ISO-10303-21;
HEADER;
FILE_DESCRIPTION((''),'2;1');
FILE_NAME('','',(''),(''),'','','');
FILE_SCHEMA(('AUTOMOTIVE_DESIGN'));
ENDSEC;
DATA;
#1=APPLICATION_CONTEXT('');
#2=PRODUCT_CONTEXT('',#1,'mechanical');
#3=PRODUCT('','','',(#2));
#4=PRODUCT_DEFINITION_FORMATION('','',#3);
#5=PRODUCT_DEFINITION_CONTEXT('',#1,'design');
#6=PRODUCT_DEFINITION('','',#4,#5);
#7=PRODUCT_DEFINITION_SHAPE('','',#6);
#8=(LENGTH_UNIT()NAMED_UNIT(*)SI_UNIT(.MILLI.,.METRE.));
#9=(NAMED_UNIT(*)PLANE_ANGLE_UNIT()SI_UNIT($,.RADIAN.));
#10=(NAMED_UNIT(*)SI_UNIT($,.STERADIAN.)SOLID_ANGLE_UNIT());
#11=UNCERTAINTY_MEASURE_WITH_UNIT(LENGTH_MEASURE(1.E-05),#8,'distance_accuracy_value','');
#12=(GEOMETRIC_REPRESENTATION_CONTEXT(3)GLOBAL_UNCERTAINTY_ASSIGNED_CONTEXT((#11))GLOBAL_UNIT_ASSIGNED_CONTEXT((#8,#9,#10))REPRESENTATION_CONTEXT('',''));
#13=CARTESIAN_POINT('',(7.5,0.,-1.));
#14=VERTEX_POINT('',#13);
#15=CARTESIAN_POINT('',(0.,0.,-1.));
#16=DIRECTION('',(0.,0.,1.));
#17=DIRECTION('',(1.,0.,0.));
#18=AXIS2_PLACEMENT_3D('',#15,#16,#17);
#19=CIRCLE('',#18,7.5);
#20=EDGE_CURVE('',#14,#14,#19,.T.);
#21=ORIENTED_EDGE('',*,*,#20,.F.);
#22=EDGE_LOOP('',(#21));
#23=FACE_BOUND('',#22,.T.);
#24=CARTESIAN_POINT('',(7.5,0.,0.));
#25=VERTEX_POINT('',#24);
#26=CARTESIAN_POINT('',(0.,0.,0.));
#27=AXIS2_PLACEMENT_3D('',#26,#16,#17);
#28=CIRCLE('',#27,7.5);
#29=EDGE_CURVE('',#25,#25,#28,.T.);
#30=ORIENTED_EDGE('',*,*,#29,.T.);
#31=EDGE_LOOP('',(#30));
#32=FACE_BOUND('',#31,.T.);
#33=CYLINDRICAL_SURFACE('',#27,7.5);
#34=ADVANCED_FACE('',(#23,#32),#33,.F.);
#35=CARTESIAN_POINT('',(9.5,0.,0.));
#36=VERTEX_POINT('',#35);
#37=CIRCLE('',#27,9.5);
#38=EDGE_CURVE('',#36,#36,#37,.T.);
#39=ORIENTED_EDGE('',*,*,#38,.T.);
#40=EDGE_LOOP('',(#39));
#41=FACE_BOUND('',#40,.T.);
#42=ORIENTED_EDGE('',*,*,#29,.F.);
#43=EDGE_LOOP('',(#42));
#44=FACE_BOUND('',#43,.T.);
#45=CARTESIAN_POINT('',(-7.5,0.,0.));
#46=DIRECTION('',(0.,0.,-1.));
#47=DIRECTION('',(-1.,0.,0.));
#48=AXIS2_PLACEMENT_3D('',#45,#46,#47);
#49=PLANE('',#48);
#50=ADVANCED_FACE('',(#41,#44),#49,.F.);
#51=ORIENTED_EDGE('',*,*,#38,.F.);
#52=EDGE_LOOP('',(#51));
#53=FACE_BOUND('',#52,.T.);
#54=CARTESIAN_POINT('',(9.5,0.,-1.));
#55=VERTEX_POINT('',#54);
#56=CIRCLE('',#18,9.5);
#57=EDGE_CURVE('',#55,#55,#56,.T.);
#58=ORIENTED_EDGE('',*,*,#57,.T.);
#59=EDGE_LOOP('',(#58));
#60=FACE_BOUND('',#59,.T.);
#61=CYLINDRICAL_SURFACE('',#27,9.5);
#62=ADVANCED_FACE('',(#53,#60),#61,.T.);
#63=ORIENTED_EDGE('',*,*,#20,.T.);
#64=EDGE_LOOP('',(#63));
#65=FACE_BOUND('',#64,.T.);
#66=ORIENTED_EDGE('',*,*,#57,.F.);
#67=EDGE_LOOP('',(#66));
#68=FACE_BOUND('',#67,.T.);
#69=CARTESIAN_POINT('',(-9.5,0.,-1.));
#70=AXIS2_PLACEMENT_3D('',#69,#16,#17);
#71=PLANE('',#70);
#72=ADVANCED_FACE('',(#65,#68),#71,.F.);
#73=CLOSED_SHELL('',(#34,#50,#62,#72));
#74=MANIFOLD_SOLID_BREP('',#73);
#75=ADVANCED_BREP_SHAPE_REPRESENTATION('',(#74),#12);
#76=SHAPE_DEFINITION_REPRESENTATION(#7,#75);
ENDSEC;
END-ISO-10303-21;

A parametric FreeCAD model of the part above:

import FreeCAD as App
import Part
import Sketcher

V = App.Vector
Q = App.Units.Quantity

doc = App.newDocument("Part")
params = doc.addObject("Spreadsheet::Sheet", "Params")
for row, (alias, value) in enumerate([
    ("sketch1_width", "2 mm"),
    ("sketch1_height", "1 mm"),
    ("revolution_angle", "360 deg"),
], start=1):
    params.set(f"A{row}", alias)
    params.set(f"B{row}", "=" + value)
    params.setAlias(f"B{row}", alias)

body = doc.addObject("PartDesign::Body", "Body")

# Sketch on XZ plane
sketch1 = body.newObject("Sketcher::SketchObject", "Sketch")
sketch1.AttachmentSupport = (doc.getObject("XZ_Plane"), [""])
sketch1.MapMode = "FlatFace"
sketch1.addGeometry([
    Part.LineSegment(V(-9.5, -1, 0), V(-9.5, 0, 0)),
    Part.LineSegment(V(-9.5, 0, 0), V(-7.5, 0, 0)),
    Part.LineSegment(V(-7.5, 0, 0), V(-7.5, -1, 0)),
    Part.LineSegment(V(-7.5, -1, 0), V(-9.5, -1, 0)),
], False)
sketch1.addConstraint([
    Sketcher.Constraint("Coincident", 0, 2, 1, 1),
    Sketcher.Constraint("Coincident", 1, 2, 2, 1),
    Sketcher.Constraint("Coincident", 2, 2, 3, 1),
    Sketcher.Constraint("Coincident", 3, 2, 0, 1),
    Sketcher.Constraint("Vertical", 0),
    Sketcher.Constraint("Horizontal", 1),
    Sketcher.Constraint("Vertical", 2),
    Sketcher.Constraint("Horizontal", 3),
    Sketcher.Constraint("PointOnObject", 0, 2, -1),
    Sketcher.Constraint("DistanceX", 1, 1, 1, 2, Q("2 mm")),
    Sketcher.Constraint("DistanceY", 0, 1, 0, 2, Q("1 mm")),
    Sketcher.Constraint("DistanceX", 0, 2, -1, 1, Q("9.5 mm")),
])
sketch1.setExpression("Constraints[9]", "Params.sketch1_width")
sketch1.setExpression("Constraints[10]", "Params.sketch1_height")
revolution = body.newObject("PartDesign::Revolution", "Revolution")
revolution.Profile = sketch1
revolution.ReferenceAxis = (sketch1, ["V_Axis"])
revolution.setExpression("Angle", "Params.revolution_angle")

doc.recompute()
